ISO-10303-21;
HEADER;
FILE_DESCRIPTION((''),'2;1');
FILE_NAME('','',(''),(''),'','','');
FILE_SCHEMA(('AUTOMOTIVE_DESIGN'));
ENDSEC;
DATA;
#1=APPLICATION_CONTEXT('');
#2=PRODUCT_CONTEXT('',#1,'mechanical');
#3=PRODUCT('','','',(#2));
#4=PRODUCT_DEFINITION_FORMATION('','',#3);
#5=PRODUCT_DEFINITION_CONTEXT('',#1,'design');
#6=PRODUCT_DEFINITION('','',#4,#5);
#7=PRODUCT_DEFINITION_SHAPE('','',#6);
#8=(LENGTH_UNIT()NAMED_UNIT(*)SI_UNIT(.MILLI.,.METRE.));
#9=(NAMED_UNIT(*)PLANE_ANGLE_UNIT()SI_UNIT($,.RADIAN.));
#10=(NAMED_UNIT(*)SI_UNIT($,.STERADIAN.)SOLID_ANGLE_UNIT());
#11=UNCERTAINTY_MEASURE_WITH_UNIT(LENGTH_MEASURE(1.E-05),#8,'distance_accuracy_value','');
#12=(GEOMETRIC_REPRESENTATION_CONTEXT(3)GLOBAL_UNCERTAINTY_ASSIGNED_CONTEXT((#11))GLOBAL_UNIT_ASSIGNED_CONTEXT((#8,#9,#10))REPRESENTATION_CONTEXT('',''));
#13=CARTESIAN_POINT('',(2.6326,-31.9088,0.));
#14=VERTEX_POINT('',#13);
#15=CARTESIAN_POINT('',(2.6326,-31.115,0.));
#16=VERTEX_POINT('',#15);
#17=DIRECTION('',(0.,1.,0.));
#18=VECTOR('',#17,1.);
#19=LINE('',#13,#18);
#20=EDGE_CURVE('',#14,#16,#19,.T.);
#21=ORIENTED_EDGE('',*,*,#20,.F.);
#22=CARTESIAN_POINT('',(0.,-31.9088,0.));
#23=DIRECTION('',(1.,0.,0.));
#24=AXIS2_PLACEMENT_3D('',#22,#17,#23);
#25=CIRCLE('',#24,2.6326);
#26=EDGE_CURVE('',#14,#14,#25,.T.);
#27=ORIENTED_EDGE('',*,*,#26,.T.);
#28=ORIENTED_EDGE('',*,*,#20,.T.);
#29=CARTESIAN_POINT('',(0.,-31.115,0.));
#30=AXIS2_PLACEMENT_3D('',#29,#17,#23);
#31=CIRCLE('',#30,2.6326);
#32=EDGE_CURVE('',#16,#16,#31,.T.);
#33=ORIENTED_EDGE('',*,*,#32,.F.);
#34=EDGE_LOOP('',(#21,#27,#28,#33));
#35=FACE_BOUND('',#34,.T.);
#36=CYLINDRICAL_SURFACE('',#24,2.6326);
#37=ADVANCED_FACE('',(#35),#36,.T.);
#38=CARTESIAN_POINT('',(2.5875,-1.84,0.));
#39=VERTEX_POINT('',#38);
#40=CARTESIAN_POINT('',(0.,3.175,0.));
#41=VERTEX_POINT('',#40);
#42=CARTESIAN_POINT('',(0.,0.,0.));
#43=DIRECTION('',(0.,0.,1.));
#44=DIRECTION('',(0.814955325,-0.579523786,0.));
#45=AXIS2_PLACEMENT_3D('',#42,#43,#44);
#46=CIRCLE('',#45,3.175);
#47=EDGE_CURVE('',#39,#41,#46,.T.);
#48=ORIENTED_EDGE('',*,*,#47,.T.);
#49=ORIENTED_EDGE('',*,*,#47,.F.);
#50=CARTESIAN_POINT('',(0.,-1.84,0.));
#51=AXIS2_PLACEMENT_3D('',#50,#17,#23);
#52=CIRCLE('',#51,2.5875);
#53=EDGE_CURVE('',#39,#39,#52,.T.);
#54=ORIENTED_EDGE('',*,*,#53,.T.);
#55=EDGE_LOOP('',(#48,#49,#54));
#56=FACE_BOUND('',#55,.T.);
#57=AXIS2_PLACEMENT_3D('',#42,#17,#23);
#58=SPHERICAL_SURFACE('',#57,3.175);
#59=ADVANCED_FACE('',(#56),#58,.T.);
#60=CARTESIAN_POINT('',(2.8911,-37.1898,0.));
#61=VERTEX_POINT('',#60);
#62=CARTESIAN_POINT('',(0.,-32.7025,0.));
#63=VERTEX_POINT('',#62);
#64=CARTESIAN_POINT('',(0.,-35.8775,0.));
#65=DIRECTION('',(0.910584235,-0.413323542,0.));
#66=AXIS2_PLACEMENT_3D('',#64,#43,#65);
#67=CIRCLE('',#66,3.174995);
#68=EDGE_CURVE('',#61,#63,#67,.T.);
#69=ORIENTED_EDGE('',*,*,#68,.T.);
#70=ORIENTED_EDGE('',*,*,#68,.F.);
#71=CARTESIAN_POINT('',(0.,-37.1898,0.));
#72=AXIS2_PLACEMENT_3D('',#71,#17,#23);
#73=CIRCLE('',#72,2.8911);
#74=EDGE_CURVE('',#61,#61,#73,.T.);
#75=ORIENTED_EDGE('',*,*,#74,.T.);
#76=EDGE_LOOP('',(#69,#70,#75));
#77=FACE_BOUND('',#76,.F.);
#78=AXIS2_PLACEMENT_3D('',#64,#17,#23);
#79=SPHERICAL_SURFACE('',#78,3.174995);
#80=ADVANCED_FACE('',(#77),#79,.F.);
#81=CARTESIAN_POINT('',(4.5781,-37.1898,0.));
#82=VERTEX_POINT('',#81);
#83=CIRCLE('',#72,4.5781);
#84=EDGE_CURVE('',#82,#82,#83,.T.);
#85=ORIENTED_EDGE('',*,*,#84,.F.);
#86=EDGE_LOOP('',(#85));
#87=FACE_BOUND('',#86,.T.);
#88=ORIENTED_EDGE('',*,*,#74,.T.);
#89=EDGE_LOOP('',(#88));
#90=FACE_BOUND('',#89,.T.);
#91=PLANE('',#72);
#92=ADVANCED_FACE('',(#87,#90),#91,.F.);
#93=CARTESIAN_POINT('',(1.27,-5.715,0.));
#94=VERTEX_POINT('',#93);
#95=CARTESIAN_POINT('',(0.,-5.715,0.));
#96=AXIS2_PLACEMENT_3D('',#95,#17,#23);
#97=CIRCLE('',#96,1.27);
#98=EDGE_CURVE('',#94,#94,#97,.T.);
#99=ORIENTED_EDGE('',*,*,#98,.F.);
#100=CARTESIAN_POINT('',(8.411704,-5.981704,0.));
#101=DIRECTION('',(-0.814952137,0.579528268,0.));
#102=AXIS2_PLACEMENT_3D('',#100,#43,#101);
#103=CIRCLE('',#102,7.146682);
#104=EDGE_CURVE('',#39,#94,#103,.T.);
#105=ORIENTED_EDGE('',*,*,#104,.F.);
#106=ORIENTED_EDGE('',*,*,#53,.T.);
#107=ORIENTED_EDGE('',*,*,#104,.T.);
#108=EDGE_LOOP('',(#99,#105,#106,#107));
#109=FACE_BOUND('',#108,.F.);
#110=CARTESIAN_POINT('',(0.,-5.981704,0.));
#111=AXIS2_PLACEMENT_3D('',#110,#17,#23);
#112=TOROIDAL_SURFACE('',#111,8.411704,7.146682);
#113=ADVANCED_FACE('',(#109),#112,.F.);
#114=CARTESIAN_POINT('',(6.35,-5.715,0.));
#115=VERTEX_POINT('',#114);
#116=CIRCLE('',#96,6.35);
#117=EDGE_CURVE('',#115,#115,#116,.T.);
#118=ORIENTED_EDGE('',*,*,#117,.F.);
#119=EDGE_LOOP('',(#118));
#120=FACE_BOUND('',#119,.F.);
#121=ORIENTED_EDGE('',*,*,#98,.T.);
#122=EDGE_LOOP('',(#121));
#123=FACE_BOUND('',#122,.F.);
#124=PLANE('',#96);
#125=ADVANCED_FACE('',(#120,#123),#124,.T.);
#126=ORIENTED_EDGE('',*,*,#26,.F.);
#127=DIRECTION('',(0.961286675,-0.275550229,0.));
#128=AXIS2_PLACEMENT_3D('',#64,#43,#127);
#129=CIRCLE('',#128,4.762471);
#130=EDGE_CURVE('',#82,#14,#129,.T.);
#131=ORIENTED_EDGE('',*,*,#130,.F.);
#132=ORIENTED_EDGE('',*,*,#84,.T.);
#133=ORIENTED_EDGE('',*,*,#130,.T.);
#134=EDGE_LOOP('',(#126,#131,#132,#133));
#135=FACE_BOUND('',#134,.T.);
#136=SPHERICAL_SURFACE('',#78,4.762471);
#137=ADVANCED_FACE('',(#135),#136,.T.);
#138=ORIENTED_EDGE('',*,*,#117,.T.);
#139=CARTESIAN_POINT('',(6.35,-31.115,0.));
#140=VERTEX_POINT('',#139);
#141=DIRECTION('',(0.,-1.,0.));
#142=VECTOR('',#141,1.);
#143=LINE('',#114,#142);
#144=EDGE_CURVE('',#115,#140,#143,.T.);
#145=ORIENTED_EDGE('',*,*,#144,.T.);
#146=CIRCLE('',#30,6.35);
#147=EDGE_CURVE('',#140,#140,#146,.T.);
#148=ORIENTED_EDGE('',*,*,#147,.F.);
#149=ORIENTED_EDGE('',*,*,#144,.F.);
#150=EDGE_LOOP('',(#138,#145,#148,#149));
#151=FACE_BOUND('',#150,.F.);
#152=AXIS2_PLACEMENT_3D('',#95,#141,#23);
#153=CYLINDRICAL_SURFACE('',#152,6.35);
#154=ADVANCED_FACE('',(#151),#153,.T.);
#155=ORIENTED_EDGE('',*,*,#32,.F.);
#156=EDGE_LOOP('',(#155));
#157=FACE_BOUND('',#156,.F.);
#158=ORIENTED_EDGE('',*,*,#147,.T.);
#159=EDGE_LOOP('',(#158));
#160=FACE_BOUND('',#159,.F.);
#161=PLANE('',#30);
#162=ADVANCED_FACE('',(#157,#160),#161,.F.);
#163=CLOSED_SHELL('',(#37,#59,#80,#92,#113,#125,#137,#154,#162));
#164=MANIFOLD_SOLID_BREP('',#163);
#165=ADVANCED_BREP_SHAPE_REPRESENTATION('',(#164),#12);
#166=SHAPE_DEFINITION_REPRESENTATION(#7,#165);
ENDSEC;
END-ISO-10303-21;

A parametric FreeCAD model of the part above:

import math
import FreeCAD as App
import Part
import Sketcher
from FreeCAD import Vector
Q = App.Units.Quantity

doc = App.newDocument("Part")
params = doc.addObject("Spreadsheet::Sheet", "Params")
for row, (alias, value) in enumerate([
    ("sketch1_height", "1 in"),
    ("sketch1_radius", "0.125 in"),
    ("sketch1_radius2", "0.1875 in"),
    ("sketch1_height2", "0.031252 in"),
    ("revolution_angle", "360 deg"),
], start=1):
    params.set(f"A{row}", alias)
    params.set(f"B{row}", "=" + value)
    params.setAlias(f"B{row}", alias)

body = doc.addObject("PartDesign::Body", "Body")

sketch1 = body.newObject("Sketcher::SketchObject", "Sketch")
sketch1.AttachmentSupport = (doc.getObject("XY_Plane"), [""])
sketch1.MapMode = "FlatFace"
sketch1.addGeometry([
    Part.ArcOfCircle(Part.Circle(Vector(0, 0, 0), Vector(0, 0, 1), 3.2), math.radians(-35), math.radians(90)),
    Part.LineSegment(Vector(0, 3.2, 0), Vector(0, -32.7, 0)),
    Part.ArcOfCircle(Part.Circle(Vector(0, -35.9, 0), Vector(0, 0, 1), 3.2), math.radians(-24), math.radians(90)),
    Part.LineSegment(Vector(2.9, -37.2, 0), Vector(4.6, -37.2, 0)),
    Part.ArcOfCircle(Part.Circle(Vector(0, -35.9, 0), Vector(0, 0, 1), 4.8), math.radians(-16), math.radians(56)),
    Part.LineSegment(Vector(2.6, -31.9, 0), Vector(2.6, -31.1, 0)),
    Part.LineSegment(Vector(2.6, -31.1, 0), Vector(6.3, -31.1, 0)),
    Part.LineSegment(Vector(6.3, -31.1, 0), Vector(6.3, -5.7, 0)),
    Part.LineSegment(Vector(6.3, -5.7, 0), Vector(1.3, -5.7, 0)),
    Part.ArcOfCircle(Part.Circle(Vector(8.4, -6, 0), Vector(0, 0, 1), 7.1), math.radians(145), math.radians(178)),
], False)
sketch1.addConstraint([
    Sketcher.Constraint("Coincident", 0, 2, 1, 1),
    Sketcher.Constraint("Coincident", 1, 2, 2, 2),
    Sketcher.Constraint("Coincident", 2, 1, 3, 1),
    Sketcher.Constraint("Coincident", 3, 2, 4, 1),
    Sketcher.Constraint("Coincident", 4, 2, 5, 1),
    Sketcher.Constraint("Coincident", 5, 2, 6, 1),
    Sketcher.Constraint("Coincident", 6, 2, 7, 1),
    Sketcher.Constraint("Coincident", 7, 2, 8, 1),
    Sketcher.Constraint("Coincident", 8, 2, 9, 2),
    Sketcher.Constraint("Tangent", 9, 1, 0, 1),
    Sketcher.Constraint("Vertical", 1),
    Sketcher.Constraint("Horizontal", 3),
    Sketcher.Constraint("Vertical", 5),
    Sketcher.Constraint("Horizontal", 6),
    Sketcher.Constraint("Vertical", 7),
    Sketcher.Constraint("Horizontal", 8),
    Sketcher.Constraint("Coincident", 0, 3, -1, 1),
    Sketcher.Constraint("Coincident", 4, 3, 2, 3),
    Sketcher.Constraint("Equal", 0, 2),
    Sketcher.Constraint("PointOnObject", 2, 3, -2),
    Sketcher.Constraint("PointOnObject", 0, 2, -2),
    Sketcher.Constraint("DistanceY", 7, 1, 7, 2, Q("1 in")),
    Sketcher.Constraint("Radius", 0, Q("0.125 in")),
    Sketcher.Constraint("Radius", 4, Q("0.1875 in")),
    Sketcher.Constraint("DistanceX", -1, 1, 6, 2, Q("0.25 in")),
    Sketcher.Constraint("DistanceX", -1, 1, 8, 2, Q("0.05 in")),
    Sketcher.Constraint("DistanceY", 2, 3, 5, 2, Q("0.1875 in")),
    Sketcher.Constraint("DistanceY", 5, 1, 5, 2, Q("0.031252 in")),
    Sketcher.Constraint("Radius", 9, 7.1465),
    Sketcher.Constraint("DistanceY", 7, 2, 0, 2, Q("0.35 in")),
    Sketcher.Constraint("DistanceX", 3, 1, 3, 2, 1.687),
])
sketch1.setExpression("Constraints[21]", "Params.sketch1_height")
sketch1.setExpression("Constraints[22]", "Params.sketch1_radius")
sketch1.setExpression("Constraints[23]", "Params.sketch1_radius2")
sketch1.setExpression("Constraints[27]", "Params.sketch1_height2")
revolution = body.newObject("PartDesign::Revolution", "Revolution")
revolution.Profile = sketch1
revolution.ReferenceAxis = (sketch1, ["V_Axis"])
revolution.setExpression("Angle", "Params.revolution_angle")

doc.recompute()
